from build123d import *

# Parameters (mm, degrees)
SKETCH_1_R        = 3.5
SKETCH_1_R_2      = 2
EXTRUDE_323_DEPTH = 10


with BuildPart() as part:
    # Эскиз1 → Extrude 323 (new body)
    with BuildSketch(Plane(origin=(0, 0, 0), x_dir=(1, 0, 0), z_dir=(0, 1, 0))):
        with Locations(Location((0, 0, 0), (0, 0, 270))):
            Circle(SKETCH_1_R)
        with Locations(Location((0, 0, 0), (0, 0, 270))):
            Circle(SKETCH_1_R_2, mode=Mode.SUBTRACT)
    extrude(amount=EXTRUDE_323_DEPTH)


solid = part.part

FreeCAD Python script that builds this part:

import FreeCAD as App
import Part
import Sketcher

V = App.Vector

doc = App.newDocument("Part")
body = doc.addObject("PartDesign::Body", "Body")

sketch1 = body.newObject("Sketcher::SketchObject", "Sketch")
sketch1.AttachmentSupport = (doc.getObject("XZ_Plane"), [""])
sketch1.MapMode = "FlatFace"
sketch1.addGeometry([
    Part.Circle(V(0, 0, 0), V(0, 0, 1), 3.5),
    Part.Circle(V(0, 0, 0), V(0, 0, 1), 2),
], False)
sketch1.addConstraint([
    Sketcher.Constraint("Coincident", 0, 3, -1, 1),
    Sketcher.Constraint("Coincident", 1, 3, -1, 1),
    Sketcher.Constraint("Diameter", 0, 7.0),
    Sketcher.Constraint("Diameter", 1, 4.0),
])
pad1 = body.newObject("PartDesign::Pad", "Pad")
pad1.Profile = sketch1
pad1.Length = 10
pad1.Reversed = True

doc.recompute()
